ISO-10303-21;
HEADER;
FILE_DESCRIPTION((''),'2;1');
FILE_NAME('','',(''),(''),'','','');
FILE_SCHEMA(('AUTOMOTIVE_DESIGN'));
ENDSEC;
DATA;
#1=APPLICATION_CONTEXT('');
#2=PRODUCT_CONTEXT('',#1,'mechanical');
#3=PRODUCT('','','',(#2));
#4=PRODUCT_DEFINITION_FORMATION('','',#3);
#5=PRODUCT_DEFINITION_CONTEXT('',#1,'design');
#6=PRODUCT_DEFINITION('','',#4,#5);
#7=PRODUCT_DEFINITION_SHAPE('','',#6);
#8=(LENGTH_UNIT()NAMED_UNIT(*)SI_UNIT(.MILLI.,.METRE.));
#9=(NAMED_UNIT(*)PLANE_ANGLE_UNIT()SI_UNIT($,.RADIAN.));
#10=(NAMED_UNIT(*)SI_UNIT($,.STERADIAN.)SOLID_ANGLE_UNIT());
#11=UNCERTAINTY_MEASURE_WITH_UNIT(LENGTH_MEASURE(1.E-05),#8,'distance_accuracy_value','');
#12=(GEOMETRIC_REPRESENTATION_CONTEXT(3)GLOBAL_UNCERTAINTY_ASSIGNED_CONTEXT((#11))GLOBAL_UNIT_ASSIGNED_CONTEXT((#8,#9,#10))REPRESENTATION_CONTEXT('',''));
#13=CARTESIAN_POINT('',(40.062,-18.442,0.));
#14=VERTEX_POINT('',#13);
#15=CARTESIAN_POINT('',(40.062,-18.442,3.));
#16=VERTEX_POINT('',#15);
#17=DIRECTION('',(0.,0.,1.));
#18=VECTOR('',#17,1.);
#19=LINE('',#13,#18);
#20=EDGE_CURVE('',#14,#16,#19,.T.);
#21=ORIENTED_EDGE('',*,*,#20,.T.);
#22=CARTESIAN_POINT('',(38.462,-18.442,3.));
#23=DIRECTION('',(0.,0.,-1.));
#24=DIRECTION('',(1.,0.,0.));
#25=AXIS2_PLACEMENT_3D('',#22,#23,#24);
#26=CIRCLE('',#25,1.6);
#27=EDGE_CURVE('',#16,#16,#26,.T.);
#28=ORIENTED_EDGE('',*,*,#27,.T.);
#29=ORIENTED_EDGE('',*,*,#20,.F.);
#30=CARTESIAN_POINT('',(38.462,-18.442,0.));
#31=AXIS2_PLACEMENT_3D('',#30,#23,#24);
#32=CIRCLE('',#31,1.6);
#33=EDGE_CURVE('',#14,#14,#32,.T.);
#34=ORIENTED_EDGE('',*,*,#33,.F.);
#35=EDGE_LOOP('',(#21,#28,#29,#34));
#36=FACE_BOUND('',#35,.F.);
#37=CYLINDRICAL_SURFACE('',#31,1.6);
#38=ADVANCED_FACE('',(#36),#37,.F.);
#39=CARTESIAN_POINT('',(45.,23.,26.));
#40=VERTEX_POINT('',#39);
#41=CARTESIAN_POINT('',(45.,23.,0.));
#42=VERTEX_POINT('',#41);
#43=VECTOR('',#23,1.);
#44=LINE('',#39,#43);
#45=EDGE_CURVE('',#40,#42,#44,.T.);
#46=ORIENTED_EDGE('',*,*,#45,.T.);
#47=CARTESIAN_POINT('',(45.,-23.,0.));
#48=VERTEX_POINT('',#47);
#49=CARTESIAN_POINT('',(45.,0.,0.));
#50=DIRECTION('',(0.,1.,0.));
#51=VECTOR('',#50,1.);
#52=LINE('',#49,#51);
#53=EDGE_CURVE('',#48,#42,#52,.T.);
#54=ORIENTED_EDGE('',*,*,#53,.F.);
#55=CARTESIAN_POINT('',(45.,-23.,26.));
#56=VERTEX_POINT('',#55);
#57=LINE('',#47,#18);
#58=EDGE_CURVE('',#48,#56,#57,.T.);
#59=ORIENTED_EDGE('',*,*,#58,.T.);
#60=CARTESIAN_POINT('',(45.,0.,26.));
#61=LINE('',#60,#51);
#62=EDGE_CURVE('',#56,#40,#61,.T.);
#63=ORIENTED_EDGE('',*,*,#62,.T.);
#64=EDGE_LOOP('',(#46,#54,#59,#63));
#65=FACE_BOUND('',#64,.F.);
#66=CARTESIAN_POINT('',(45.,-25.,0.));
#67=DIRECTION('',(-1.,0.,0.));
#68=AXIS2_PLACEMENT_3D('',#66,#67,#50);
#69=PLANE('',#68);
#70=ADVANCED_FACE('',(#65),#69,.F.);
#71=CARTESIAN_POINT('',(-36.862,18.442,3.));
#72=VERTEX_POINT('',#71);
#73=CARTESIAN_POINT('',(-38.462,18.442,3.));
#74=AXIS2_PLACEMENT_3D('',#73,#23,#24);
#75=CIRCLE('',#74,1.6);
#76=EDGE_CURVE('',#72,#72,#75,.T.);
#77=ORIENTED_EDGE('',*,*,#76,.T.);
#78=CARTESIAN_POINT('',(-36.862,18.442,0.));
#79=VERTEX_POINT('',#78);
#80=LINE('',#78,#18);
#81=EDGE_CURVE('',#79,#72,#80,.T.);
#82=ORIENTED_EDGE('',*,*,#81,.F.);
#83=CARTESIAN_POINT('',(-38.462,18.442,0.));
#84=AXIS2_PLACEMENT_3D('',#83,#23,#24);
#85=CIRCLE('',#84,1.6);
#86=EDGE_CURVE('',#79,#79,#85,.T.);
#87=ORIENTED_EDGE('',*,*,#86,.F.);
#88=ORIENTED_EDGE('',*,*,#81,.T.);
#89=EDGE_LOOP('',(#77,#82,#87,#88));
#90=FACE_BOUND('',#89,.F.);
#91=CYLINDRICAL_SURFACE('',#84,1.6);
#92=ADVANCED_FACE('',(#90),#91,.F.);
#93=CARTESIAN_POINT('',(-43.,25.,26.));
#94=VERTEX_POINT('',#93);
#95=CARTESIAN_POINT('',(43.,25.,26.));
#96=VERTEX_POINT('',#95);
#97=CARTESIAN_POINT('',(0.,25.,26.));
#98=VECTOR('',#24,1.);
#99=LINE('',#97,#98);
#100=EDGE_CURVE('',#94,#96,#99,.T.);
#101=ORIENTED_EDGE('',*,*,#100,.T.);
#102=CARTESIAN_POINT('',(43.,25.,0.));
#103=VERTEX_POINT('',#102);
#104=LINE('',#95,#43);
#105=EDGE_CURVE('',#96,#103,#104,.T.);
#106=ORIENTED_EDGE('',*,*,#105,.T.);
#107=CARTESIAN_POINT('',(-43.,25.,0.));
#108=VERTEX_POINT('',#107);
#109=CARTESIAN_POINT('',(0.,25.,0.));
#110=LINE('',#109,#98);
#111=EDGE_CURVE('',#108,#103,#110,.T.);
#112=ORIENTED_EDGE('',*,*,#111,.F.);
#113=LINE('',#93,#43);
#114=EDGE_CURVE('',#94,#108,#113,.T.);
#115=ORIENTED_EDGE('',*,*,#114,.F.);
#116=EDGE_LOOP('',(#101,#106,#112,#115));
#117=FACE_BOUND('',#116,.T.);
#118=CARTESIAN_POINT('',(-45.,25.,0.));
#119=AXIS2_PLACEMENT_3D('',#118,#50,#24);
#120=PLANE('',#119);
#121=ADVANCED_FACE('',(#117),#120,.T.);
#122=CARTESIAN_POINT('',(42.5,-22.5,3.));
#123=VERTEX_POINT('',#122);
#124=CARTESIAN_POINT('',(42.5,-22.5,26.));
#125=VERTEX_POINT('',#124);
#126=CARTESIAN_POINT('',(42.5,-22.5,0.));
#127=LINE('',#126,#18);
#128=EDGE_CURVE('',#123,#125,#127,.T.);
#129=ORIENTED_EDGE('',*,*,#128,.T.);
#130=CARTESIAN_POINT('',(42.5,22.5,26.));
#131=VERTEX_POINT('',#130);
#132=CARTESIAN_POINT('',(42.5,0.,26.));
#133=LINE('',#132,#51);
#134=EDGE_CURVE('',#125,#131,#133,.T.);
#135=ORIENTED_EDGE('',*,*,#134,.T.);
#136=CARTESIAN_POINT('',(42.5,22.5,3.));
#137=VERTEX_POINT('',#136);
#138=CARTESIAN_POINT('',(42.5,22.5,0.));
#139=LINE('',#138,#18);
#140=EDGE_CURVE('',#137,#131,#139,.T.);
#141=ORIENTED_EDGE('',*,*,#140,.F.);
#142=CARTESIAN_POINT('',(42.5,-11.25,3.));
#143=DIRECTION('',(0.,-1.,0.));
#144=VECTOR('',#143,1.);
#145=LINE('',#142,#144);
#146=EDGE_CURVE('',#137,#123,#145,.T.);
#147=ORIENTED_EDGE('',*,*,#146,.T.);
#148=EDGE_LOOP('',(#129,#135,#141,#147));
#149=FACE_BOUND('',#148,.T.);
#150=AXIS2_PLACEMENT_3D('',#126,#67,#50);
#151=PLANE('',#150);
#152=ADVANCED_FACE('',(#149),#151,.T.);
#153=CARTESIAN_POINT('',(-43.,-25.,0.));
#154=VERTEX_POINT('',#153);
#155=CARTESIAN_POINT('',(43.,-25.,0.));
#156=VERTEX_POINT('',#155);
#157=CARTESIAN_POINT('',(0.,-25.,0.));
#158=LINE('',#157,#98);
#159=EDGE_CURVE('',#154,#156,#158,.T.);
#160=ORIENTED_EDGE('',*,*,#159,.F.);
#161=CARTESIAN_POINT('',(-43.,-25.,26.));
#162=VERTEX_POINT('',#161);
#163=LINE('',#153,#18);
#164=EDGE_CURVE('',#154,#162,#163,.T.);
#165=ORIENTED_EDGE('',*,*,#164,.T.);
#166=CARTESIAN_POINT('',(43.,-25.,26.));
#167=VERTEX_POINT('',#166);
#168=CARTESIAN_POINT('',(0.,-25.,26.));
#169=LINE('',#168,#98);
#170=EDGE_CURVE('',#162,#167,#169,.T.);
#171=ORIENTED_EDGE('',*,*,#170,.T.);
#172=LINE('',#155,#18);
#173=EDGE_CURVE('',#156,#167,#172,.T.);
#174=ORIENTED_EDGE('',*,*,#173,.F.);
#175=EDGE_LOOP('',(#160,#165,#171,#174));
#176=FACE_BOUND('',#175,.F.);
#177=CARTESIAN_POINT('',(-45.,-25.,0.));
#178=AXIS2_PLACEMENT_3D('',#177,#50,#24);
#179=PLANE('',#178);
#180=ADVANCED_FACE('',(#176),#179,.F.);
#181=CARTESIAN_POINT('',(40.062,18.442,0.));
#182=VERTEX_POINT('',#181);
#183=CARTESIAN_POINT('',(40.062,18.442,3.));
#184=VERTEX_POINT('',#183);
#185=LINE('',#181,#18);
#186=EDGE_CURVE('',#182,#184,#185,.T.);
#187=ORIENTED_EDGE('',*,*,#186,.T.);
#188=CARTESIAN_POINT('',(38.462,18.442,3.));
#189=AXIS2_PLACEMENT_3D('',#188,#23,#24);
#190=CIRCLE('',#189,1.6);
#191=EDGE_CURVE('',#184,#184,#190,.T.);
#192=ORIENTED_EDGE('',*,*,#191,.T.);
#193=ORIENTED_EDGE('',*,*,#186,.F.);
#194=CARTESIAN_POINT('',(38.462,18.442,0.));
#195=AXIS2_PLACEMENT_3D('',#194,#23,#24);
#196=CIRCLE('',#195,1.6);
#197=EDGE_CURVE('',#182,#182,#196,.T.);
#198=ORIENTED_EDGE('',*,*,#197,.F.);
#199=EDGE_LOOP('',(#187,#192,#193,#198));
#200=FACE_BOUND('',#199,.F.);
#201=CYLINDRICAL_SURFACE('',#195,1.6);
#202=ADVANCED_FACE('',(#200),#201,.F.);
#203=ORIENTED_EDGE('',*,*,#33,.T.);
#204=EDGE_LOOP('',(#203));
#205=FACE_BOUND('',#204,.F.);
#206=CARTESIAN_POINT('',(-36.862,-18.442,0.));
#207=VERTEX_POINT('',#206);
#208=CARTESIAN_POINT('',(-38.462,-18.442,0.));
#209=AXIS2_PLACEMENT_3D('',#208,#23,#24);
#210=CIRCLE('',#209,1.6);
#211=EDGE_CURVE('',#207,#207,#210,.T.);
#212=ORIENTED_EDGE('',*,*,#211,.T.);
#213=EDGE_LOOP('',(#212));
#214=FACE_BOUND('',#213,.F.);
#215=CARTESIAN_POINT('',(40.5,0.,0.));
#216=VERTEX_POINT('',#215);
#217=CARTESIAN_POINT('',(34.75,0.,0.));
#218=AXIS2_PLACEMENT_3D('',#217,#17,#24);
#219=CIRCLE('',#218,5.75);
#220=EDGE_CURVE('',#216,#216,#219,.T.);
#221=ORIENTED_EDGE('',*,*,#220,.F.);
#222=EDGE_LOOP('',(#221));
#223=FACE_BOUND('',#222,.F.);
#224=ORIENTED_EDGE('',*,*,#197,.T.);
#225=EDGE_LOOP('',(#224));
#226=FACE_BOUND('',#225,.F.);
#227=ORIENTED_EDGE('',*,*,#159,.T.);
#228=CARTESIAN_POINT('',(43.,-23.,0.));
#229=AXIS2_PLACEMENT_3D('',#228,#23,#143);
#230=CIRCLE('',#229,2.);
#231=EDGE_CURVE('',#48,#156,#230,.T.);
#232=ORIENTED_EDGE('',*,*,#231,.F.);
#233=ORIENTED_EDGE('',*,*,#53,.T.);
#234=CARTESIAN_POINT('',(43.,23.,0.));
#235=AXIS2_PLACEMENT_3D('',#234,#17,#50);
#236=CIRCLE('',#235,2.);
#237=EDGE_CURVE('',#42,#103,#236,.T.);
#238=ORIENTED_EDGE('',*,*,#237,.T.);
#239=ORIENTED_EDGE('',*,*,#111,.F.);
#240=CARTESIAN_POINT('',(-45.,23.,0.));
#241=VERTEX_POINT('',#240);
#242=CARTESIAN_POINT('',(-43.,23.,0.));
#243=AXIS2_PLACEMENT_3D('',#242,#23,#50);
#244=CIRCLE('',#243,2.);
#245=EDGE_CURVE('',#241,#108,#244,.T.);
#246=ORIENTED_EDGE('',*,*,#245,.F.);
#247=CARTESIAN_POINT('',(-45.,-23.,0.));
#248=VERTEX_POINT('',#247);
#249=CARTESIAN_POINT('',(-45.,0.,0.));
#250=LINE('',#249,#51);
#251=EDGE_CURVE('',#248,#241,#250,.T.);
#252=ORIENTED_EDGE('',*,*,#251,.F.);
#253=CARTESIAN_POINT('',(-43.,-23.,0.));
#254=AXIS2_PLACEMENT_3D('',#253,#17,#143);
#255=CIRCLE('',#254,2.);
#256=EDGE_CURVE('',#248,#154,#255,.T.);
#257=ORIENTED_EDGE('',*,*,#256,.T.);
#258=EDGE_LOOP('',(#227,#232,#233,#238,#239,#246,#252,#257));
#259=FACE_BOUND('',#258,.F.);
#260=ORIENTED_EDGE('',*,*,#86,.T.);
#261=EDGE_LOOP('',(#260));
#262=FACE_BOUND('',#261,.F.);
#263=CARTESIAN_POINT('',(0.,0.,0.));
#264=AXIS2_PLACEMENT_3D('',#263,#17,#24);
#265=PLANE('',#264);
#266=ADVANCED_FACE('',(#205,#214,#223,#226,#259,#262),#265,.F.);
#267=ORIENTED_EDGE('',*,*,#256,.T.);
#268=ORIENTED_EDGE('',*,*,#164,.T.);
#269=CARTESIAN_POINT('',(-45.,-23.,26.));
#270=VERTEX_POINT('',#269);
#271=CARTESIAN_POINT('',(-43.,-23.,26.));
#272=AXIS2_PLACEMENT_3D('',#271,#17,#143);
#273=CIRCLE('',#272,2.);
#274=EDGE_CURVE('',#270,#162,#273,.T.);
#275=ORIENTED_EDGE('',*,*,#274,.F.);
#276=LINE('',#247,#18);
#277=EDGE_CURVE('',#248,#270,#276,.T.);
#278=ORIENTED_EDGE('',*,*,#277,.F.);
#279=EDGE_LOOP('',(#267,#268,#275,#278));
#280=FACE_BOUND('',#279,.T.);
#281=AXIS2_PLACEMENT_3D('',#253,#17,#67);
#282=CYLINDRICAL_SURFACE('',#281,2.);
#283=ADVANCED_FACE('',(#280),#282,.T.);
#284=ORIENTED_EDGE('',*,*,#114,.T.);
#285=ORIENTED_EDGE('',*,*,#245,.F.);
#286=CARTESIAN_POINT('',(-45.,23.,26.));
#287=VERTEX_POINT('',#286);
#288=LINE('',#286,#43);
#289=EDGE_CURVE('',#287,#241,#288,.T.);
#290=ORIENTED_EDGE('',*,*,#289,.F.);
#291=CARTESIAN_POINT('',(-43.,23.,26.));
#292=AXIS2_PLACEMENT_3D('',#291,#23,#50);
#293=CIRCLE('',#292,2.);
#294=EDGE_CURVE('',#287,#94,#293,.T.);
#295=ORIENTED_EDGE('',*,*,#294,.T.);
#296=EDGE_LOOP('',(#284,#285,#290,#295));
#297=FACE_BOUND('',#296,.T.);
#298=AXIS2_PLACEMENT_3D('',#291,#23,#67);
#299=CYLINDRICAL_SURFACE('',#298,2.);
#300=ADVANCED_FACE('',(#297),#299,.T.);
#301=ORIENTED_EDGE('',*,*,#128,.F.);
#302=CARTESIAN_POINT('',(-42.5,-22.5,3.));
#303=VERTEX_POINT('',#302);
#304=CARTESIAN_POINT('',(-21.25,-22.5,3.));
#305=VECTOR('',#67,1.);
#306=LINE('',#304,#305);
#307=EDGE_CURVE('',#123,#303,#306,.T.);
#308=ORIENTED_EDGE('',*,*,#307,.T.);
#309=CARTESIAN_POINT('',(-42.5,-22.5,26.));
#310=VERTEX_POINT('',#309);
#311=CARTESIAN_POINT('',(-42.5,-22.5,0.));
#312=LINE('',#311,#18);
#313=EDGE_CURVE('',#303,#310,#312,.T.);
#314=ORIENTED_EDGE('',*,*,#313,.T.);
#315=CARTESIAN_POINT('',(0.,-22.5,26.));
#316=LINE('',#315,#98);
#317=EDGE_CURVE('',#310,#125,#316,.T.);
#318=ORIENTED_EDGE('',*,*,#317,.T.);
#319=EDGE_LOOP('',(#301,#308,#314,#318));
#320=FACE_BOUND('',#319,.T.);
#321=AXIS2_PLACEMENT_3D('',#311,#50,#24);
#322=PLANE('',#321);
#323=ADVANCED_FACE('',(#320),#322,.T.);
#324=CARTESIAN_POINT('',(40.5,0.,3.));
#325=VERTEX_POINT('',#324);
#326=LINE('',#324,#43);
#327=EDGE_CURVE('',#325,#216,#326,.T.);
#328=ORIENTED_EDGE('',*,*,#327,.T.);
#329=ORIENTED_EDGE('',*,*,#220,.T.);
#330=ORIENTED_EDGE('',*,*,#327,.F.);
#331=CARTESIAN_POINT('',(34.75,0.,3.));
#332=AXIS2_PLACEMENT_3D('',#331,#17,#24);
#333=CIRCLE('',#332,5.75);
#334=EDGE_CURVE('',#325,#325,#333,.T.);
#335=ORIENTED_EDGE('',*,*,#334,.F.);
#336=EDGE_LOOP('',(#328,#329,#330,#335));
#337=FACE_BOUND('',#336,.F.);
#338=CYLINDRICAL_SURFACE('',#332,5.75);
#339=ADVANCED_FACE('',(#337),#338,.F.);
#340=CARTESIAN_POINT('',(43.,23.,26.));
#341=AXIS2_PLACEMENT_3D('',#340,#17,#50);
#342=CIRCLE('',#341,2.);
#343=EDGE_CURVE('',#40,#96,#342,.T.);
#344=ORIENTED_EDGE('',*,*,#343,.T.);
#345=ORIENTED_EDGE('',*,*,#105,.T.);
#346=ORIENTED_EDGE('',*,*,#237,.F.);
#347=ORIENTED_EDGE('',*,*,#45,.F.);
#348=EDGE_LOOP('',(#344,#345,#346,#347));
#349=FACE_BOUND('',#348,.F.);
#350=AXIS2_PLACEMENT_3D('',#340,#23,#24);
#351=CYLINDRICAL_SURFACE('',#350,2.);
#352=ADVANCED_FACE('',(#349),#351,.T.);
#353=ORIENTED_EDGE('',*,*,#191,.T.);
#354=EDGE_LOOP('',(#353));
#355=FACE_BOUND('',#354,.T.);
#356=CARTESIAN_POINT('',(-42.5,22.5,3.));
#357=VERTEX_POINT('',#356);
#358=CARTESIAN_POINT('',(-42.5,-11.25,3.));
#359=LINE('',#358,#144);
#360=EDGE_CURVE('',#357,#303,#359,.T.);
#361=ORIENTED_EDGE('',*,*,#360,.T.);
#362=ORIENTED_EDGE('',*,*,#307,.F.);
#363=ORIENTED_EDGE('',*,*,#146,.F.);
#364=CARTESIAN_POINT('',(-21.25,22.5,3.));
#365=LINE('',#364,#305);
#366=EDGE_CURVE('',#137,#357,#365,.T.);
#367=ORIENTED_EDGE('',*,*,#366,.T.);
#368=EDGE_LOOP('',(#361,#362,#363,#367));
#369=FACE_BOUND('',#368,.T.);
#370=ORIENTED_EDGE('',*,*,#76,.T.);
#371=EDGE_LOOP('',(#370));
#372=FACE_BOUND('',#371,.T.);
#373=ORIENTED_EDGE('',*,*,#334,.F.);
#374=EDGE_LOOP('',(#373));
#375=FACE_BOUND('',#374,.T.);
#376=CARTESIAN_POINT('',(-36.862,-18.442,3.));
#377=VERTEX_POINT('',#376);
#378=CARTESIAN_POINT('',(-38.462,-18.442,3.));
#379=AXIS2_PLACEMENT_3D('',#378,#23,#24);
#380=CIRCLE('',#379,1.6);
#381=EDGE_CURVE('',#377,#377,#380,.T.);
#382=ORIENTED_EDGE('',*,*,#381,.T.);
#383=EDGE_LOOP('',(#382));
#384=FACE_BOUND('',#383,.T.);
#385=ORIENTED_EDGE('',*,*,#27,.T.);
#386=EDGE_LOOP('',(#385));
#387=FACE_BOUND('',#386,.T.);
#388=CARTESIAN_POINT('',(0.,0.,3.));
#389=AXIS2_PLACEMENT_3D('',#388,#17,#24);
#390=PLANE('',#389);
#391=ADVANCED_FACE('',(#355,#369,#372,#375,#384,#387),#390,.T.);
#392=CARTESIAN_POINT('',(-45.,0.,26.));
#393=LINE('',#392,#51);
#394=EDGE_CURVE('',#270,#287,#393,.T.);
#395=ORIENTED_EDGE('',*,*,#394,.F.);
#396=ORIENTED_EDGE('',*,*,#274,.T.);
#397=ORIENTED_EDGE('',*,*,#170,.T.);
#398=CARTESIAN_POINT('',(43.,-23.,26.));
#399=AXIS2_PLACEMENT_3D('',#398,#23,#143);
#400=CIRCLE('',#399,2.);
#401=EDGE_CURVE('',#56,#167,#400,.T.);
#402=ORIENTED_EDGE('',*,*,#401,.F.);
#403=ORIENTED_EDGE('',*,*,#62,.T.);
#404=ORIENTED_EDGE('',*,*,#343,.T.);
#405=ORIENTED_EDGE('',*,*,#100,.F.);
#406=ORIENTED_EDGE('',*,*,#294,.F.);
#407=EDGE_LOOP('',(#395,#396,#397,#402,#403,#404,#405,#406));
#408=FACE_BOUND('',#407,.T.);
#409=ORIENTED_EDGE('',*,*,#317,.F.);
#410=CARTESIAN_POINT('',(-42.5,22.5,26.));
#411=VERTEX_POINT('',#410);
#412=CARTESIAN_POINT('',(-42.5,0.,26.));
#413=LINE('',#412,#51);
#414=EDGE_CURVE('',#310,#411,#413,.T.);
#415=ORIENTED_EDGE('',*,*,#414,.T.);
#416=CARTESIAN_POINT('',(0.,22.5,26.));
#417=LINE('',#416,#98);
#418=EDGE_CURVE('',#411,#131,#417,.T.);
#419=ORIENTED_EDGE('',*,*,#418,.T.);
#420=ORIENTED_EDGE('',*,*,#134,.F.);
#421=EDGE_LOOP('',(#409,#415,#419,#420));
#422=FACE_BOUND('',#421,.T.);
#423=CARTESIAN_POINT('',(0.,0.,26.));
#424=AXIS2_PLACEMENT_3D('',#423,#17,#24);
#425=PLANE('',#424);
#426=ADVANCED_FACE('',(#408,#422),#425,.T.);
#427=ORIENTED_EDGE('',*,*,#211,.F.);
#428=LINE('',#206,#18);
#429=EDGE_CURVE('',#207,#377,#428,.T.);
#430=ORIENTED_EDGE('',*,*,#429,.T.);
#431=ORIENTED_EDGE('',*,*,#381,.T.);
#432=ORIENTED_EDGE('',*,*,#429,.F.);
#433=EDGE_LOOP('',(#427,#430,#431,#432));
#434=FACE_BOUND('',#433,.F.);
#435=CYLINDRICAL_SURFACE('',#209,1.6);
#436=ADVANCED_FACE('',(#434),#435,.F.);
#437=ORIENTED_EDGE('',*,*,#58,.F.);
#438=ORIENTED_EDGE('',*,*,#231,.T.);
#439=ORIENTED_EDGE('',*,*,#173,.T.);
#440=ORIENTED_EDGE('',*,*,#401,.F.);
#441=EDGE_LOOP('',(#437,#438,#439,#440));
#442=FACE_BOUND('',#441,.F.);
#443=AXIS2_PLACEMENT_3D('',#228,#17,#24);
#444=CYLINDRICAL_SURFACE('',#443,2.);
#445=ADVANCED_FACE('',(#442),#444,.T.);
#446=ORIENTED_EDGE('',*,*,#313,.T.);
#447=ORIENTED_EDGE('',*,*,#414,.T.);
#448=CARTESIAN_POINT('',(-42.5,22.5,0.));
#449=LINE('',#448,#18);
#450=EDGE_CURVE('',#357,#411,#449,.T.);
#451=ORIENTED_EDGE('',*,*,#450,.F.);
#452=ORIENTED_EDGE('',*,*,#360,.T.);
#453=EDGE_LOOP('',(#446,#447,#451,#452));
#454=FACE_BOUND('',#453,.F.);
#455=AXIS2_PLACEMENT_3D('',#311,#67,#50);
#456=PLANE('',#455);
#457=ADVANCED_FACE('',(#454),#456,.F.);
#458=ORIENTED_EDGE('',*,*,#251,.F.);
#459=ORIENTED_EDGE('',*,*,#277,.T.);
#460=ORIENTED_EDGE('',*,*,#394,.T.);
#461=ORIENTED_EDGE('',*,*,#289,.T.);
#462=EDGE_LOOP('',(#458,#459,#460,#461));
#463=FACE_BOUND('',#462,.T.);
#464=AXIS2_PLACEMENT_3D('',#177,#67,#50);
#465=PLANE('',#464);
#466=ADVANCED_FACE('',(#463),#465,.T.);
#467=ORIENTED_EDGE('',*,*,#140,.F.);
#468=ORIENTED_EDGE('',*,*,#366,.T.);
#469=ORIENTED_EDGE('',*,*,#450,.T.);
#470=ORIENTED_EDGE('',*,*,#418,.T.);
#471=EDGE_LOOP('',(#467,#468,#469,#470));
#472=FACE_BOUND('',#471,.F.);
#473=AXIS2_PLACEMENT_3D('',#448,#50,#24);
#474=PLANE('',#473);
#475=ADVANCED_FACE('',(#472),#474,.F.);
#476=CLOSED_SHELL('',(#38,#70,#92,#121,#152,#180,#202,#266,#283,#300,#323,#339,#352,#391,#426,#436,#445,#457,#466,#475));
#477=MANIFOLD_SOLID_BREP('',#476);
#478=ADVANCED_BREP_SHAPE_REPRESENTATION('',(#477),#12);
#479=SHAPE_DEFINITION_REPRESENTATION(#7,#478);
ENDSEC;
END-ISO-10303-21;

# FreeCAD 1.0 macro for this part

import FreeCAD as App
import Part
import Sketcher
from FreeCAD import Vector
Q = App.Units.Quantity


def edges_at(feature, points):
    """Names of the edges that pass closest to the given points."""
    edges = feature.Shape.Edges
    near = lambda p: min(range(len(edges)), key=lambda i: edges[i].distToShape(Part.Vertex(*p))[0])
    return sorted({f"Edge{near(p) + 1}" for p in points})


def add_polygon(sketch, points):
    """Adds a closed chain of lines whose ends are joined by coincident constraints."""
    first, n = sketch.GeometryCount, len(points)
    for a, b in zip(points, points[1:] + points[:1]):
        sketch.addGeometry(Part.LineSegment(App.Vector(*a, 0), App.Vector(*b, 0)), False)
    for i in range(n):
        sketch.addConstraint(Sketcher.Constraint("Coincident", first + i, 2, first + (i + 1) % n, 1))

doc = App.newDocument("Part")
body = doc.addObject("PartDesign::Body", "Body")

# Sketch on XY plane
sketch1 = doc.addObject("Sketcher::SketchObject", "Sketch")
body.addObject(sketch1)
sketch1.AttachmentSupport = (doc.XY_Plane, [""])
sketch1.MapMode = "FlatFace"
add_polygon(sketch1, [(-45, 25), (-45, -25), (45, -25), (45, 25)])  # lines 0-3
sketch1.addConstraint([
    Sketcher.Constraint("Vertical", 0),
    Sketcher.Constraint("Horizontal", 1),
    Sketcher.Constraint("Vertical", 2),
    Sketcher.Constraint("Horizontal", 3),
    Sketcher.Constraint("Symmetric", 0, 2, 2, 2, -1, 1),
    Sketcher.Constraint("DistanceX", 1, 1, 1, 2, Q("90 mm")),
    Sketcher.Constraint("DistanceY", 0, 2, 0, 1, Q("50 mm")),
])
pad1 = doc.addObject("PartDesign::Pad", "Pad")
body.addObject(pad1)
pad1.Profile = sketch1
pad1.Length = 3

# Sketch on XY plane
sketch2 = doc.addObject("Sketcher::SketchObject", "Sketch001")
body.addObject(sketch2)
sketch2.AttachmentSupport = (doc.XY_Plane, [""])
sketch2.MapMode = "FlatFace"
add_polygon(sketch2, [(-45, 25), (-45, -25), (45, -25), (45, 25)])  # lines 0-3
add_polygon(sketch2, [(42, -22), (-42, -22), (-42, 22), (42, 22)])  # lines 4-7
sketch2.addConstraint([
    Sketcher.Constraint("Vertical", 0),
    Sketcher.Constraint("Horizontal", 1),
    Sketcher.Constraint("Vertical", 2),
    Sketcher.Constraint("Horizontal", 3),
    Sketcher.Constraint("Horizontal", 4),
    Sketcher.Constraint("Vertical", 5),
    Sketcher.Constraint("Horizontal", 6),
    Sketcher.Constraint("Vertical", 7),
    Sketcher.Constraint("Symmetric", 0, 2, 2, 2, -1, 1),
    Sketcher.Constraint("Symmetric", 4, 2, 6, 2, -1, 1),
    Sketcher.Constraint("DistanceX", 1, 1, 1, 2, Q("90 mm")),
    Sketcher.Constraint("DistanceX", 4, 2, 4, 1, Q("85 mm")),
    Sketcher.Constraint("DistanceY", 0, 2, 0, 1, Q("50 mm")),
    Sketcher.Constraint("DistanceY", 5, 1, 5, 2, Q("45 mm")),
])
pad2 = doc.addObject("PartDesign::Pad", "Pad001")
body.addObject(pad2)
pad2.Profile = sketch2
pad2.Length = 26
doc.recompute()

fillet = doc.addObject("PartDesign::Fillet", "Fillet")
body.addObject(fillet)
fillet.Base = (pad2, edges_at(pad2, [
    (-45, -25, 13),
    (45, -25, 13),
    (-45, 25, 13),
    (45, 25, 13),
]))
fillet.Radius = 2

# Sketch on XY plane
sketch3 = doc.addObject("Sketcher::SketchObject", "Sketch002")
body.addObject(sketch3)
sketch3.AttachmentSupport = (doc.XY_Plane, [""])
sketch3.MapMode = "FlatFace"
sketch3.AttachmentOffset = App.Placement(Vector(0, 0, 3), App.Rotation())
sketch3.addGeometry(Part.Circle(Vector(35, 0, 0), Vector(0, 0, 1), 6), False)
sketch3.addConstraint([
    Sketcher.Constraint("PointOnObject", 0, 3, -1),
    Sketcher.Constraint("Diameter", 0, Q("11.5 mm")),
    Sketcher.Constraint("DistanceX", -1, 1, 0, 3, Q("34.75 mm")),
])
pocket1 = doc.addObject("PartDesign::Pocket", "Pocket")
body.addObject(pocket1)
pocket1.Profile = sketch3
pocket1.Type = "ThroughAll"

# Sketch on XY plane
sketch4 = doc.addObject("Sketcher::SketchObject", "Sketch003")
body.addObject(sketch4)
sketch4.AttachmentSupport = (doc.XY_Plane, [""])
sketch4.MapMode = "FlatFace"
sketch4.addGeometry([
    Part.Circle(Vector(-38.5, 18.4, 0), Vector(0, 0, 1), 1.6),
    Part.Circle(Vector(-38.5, -18.4, 0), Vector(0, 0, 1), 1.6),
    Part.Circle(Vector(38.5, -18.4, 0), Vector(0, 0, 1), 1.6),
    Part.Circle(Vector(38.5, 18.4, 0), Vector(0, 0, 1), 1.6),
], False)
sketch4.addConstraint([
    Sketcher.Constraint("Equal", 0, 1),
    Sketcher.Constraint("Equal", 1, 2),
    Sketcher.Constraint("Equal", 2, 3),
    Sketcher.Constraint("Symmetric", 0, 3, 2, 3, -1, 1),
    Sketcher.Constraint("Symmetric", 1, 3, 3, 3, -1, 1),
    Sketcher.Constraint("Symmetric", 1, 3, 2, 3, -2),
    Sketcher.Constraint("Diameter", 0, Q("3.2 mm")),
    Sketcher.Constraint("DistanceX", 0, 3, -1, 1, Q("38.462 mm")),
    Sketcher.Constraint("DistanceY", -1, 1, 0, 3, Q("18.442 mm")),
])
pocket2 = doc.addObject("PartDesign::Pocket", "Pocket001")
body.addObject(pocket2)
pocket2.Profile = sketch4
pocket2.Length = 25
pocket2.Reversed = True

doc.recompute()
